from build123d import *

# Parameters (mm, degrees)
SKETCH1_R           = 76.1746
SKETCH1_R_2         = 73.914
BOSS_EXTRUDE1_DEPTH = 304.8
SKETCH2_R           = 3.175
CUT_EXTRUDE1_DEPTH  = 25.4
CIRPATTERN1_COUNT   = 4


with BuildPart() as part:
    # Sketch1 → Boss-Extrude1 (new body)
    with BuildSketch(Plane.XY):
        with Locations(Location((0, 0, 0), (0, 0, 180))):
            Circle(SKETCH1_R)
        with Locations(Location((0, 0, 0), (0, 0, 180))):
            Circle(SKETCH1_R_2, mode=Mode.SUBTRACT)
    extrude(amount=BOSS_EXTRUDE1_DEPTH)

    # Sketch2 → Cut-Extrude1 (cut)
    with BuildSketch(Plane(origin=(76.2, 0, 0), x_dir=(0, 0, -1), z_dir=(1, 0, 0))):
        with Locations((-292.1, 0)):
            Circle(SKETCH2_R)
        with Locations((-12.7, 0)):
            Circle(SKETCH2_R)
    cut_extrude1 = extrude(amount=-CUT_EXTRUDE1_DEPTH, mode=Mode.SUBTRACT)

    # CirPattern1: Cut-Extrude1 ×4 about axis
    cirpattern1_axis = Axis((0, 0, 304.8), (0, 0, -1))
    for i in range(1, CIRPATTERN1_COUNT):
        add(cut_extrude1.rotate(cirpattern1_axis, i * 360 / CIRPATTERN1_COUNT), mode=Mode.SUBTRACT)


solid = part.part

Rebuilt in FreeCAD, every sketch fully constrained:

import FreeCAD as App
import Part
import Sketcher
from FreeCAD import Vector
Q = App.Units.Quantity

doc = App.newDocument("Part")
body = doc.addObject("PartDesign::Body", "Body")

# Sketch on XY plane
sketch1 = body.newObject("Sketcher::SketchObject", "Sketch")
sketch1.AttachmentSupport = (doc.getObject("XY_Plane"), [""])
sketch1.MapMode = "FlatFace"
sketch1.addGeometry([
    Part.Circle(Vector(0, 0, 0), Vector(0, 0, 1), 76.1746),
    Part.Circle(Vector(0, 0, 0), Vector(0, 0, 1), 73.914),
], False)
sketch1.addConstraint([
    Sketcher.Constraint("Coincident", 0, 3, -1, 1),
    Sketcher.Constraint("Coincident", 1, 3, -1, 1),
    Sketcher.Constraint("Diameter", 1, Q("5.82 in")),
    Sketcher.Constraint("Diameter", 0, Q("5.998 in")),
])
pad1 = body.newObject("PartDesign::Pad", "Pad")
pad1.Profile = sketch1
pad1.Length = Q("12 in")

# Sketch on YZ plane
sketch2 = body.newObject("Sketcher::SketchObject", "Sketch001")
sketch2.AttachmentSupport = (doc.getObject("YZ_Plane"), [""])
sketch2.MapMode = "FlatFace"
sketch2.AttachmentOffset = App.Placement(Vector(0, 0, 3 * 25.4), App.Rotation())
sketch2.addGeometry([
    Part.Circle(Vector(0, 292.1, 0), Vector(0, 0, 1), 3.175),
    Part.Circle(Vector(0, 12.7, 0), Vector(0, 0, 1), 3.175),
], False)
sketch2.addConstraint([
    Sketcher.Constraint("Equal", 0, 1),
    Sketcher.Constraint("PointOnObject", 0, 3, -2),
    Sketcher.Constraint("PointOnObject", 1, 3, -2),
    Sketcher.Constraint("Diameter", 0, Q("0.25 in")),
    Sketcher.Constraint("DistanceY", 1, 3, 0, 3, Q("11 in")),
    Sketcher.Constraint("DistanceY", -1, 1, 0, 3, Q("11.5 in")),
])
pocket1 = body.newObject("PartDesign::Pocket", "Pocket")
pocket1.Profile = sketch2
pocket1.Length = Q("1 in")
doc.recompute()

polarpattern = body.newObject("PartDesign::PolarPattern", "PolarPattern")
polarpattern.Originals = [pocket1]
polarpattern.Axis = (doc.getObject("Z_Axis"), [""])
polarpattern.Angle = 360
polarpattern.Occurrences = 4
body.Tip = polarpattern

doc.recompute()
